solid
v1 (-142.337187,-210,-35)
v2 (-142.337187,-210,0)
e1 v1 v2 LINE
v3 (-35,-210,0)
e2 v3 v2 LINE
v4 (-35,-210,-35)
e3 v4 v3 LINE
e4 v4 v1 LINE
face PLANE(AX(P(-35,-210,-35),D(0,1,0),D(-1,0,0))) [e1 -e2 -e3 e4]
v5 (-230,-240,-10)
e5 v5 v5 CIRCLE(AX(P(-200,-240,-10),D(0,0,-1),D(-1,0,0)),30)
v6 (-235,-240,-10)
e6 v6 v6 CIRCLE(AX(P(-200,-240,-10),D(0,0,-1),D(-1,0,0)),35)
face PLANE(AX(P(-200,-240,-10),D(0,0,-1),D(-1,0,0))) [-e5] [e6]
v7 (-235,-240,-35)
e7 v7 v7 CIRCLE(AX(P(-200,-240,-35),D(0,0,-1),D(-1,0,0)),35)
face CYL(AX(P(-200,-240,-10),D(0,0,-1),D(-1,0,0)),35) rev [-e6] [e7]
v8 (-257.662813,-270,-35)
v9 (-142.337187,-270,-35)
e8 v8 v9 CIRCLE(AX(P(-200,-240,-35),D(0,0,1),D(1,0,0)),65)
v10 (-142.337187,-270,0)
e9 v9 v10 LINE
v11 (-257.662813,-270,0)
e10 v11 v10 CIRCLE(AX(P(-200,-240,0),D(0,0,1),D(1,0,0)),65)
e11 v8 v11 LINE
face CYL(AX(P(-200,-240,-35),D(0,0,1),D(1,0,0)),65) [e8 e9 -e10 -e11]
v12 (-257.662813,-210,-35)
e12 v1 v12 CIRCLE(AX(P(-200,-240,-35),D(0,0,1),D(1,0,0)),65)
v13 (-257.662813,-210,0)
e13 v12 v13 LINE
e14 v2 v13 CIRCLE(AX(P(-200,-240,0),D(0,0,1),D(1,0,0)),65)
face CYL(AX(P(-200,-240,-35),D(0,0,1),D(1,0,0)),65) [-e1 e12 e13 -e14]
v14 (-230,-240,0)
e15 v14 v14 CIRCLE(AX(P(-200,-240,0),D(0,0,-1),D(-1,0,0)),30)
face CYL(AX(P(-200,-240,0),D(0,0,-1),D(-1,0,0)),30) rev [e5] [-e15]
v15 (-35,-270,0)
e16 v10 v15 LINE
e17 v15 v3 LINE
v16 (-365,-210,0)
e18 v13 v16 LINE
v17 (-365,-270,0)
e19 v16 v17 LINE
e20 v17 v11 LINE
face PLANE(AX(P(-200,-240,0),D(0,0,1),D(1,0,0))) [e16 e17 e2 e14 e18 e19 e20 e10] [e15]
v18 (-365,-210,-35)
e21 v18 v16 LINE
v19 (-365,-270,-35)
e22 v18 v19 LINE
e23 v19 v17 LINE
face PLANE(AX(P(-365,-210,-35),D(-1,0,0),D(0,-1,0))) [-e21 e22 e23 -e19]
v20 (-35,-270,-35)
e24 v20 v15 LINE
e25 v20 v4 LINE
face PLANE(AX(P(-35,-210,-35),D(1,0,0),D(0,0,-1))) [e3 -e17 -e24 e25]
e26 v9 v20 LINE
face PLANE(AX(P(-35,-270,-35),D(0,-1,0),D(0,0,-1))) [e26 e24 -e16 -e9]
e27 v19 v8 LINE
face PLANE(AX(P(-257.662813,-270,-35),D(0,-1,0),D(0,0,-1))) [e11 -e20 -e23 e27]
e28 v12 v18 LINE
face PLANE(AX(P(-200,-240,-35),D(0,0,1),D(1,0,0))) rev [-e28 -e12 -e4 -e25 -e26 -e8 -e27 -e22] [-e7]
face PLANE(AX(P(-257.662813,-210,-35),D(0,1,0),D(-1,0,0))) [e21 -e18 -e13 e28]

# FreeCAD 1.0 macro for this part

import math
import FreeCAD as App
import Part
import Sketcher

doc = App.newDocument("Part")
body = doc.addObject("PartDesign::Body", "Body")

sketch1 = body.newObject("Sketcher::SketchObject", "Sketch")
sketch1.AttachmentSupport = (doc.getObject("XY_Plane"), [""])
sketch1.MapMode = "FlatFace"
sketch1.addGeometry([
    Part.LineSegment(App.Vector(-257.662813, -210, 0), App.Vector(-365, -210, 0)),
    Part.LineSegment(App.Vector(-365, -210, 0), App.Vector(-365, -270, 0)),
    Part.LineSegment(App.Vector(-365, -270, 0), App.Vector(-257.662813, -270, 0)),
    Part.ArcOfCircle(Part.Circle(App.Vector(-200, -240, 0), App.Vector(0, 0, 1), 65), math.radians(-152.513574), math.radians(-27.486426)),
    Part.LineSegment(App.Vector(-142.337187, -270, 0), App.Vector(-35, -270, 0)),
    Part.LineSegment(App.Vector(-35, -270, 0), App.Vector(-35, -210, 0)),
    Part.LineSegment(App.Vector(-35, -210, 0), App.Vector(-142.337187, -210, 0)),
    Part.ArcOfCircle(Part.Circle(App.Vector(-200, -240, 0), App.Vector(0, 0, 1), 65), math.radians(27.486426), math.radians(152.513574)),
], False)
sketch1.addConstraint([
    Sketcher.Constraint("Coincident", 0, 2, 1, 1),
    Sketcher.Constraint("Coincident", 1, 2, 2, 1),
    Sketcher.Constraint("Coincident", 2, 2, 3, 1),
    Sketcher.Constraint("Coincident", 3, 2, 4, 1),
    Sketcher.Constraint("Coincident", 4, 2, 5, 1),
    Sketcher.Constraint("Coincident", 5, 2, 6, 1),
    Sketcher.Constraint("Coincident", 6, 2, 7, 1),
    Sketcher.Constraint("Coincident", 7, 2, 0, 1),
    Sketcher.Constraint("Horizontal", 0),
    Sketcher.Constraint("Vertical", 1),
    Sketcher.Constraint("Horizontal", 2),
    Sketcher.Constraint("Horizontal", 4),
    Sketcher.Constraint("Vertical", 5),
    Sketcher.Constraint("Horizontal", 6),
    Sketcher.Constraint("Coincident", 7, 3, 3, 3),
    Sketcher.Constraint("Equal", 3, 7),
    Sketcher.Constraint("Horizontal", 2, 2, 3, 2),
    Sketcher.Constraint("Horizontal", 0, 2, 5, 2),
    Sketcher.Constraint("Vertical", 3, 2, 6, 2),
    Sketcher.Constraint("Equal", 2, 4),
    Sketcher.Constraint("Radius", 3, 65.0),
    Sketcher.Constraint("DistanceY", 1, 2, 1, 1, 60.0),
    Sketcher.Constraint("DistanceX", 3, 3, -1, 1, 200.0),
    Sketcher.Constraint("DistanceY", 3, 3, -1, 1, 240.0),
    Sketcher.Constraint("DistanceX", 0, 2, -1, 1, 365.0),
])
pad1 = body.newObject("PartDesign::Pad", "Pad")
pad1.Profile = sketch1
pad1.Length = 35
pad1.Reversed = True

sketch2 = body.newObject("Sketcher::SketchObject", "Sketch001")
sketch2.AttachmentSupport = (doc.getObject("XY_Plane"), [""])
sketch2.MapMode = "FlatFace"
sketch2.AttachmentOffset = App.Placement(App.Vector(0, 0, -35), App.Rotation())
sketch2.addGeometry(Part.Circle(App.Vector(-200, -240, 0), App.Vector(0, 0, 1), 35), False)
sketch2.addConstraint([
    Sketcher.Constraint("Diameter", 0, 70.0),
    Sketcher.Constraint("DistanceX", 0, 3, -1, 1, 200.0),
    Sketcher.Constraint("DistanceY", 0, 3, -1, 1, 240.0),
])
pocket1 = body.newObject("PartDesign::Pocket", "Pocket")
pocket1.Profile = sketch2
pocket1.Length = 25
pocket1.Reversed = True

sketch3 = body.newObject("Sketcher::SketchObject", "Sketch002")
sketch3.AttachmentSupport = (doc.getObject("XY_Plane"), [""])
sketch3.MapMode = "FlatFace"
sketch3.AttachmentOffset = App.Placement(App.Vector(0, 0, -10), App.Rotation())
sketch3.addGeometry(Part.Circle(App.Vector(-200, -240, 0), App.Vector(0, 0, 1), 30), False)
sketch3.addConstraint([
    Sketcher.Constraint("Diameter", 0, 60.0),
    Sketcher.Constraint("DistanceX", 0, 3, -1, 1, 200.0),
    Sketcher.Constraint("DistanceY", 0, 3, -1, 1, 240.0),
])
pocket2 = body.newObject("PartDesign::Pocket", "Pocket001")
pocket2.Profile = sketch3
pocket2.Type = "ThroughAll"
pocket2.Reversed = True

doc.recompute()
